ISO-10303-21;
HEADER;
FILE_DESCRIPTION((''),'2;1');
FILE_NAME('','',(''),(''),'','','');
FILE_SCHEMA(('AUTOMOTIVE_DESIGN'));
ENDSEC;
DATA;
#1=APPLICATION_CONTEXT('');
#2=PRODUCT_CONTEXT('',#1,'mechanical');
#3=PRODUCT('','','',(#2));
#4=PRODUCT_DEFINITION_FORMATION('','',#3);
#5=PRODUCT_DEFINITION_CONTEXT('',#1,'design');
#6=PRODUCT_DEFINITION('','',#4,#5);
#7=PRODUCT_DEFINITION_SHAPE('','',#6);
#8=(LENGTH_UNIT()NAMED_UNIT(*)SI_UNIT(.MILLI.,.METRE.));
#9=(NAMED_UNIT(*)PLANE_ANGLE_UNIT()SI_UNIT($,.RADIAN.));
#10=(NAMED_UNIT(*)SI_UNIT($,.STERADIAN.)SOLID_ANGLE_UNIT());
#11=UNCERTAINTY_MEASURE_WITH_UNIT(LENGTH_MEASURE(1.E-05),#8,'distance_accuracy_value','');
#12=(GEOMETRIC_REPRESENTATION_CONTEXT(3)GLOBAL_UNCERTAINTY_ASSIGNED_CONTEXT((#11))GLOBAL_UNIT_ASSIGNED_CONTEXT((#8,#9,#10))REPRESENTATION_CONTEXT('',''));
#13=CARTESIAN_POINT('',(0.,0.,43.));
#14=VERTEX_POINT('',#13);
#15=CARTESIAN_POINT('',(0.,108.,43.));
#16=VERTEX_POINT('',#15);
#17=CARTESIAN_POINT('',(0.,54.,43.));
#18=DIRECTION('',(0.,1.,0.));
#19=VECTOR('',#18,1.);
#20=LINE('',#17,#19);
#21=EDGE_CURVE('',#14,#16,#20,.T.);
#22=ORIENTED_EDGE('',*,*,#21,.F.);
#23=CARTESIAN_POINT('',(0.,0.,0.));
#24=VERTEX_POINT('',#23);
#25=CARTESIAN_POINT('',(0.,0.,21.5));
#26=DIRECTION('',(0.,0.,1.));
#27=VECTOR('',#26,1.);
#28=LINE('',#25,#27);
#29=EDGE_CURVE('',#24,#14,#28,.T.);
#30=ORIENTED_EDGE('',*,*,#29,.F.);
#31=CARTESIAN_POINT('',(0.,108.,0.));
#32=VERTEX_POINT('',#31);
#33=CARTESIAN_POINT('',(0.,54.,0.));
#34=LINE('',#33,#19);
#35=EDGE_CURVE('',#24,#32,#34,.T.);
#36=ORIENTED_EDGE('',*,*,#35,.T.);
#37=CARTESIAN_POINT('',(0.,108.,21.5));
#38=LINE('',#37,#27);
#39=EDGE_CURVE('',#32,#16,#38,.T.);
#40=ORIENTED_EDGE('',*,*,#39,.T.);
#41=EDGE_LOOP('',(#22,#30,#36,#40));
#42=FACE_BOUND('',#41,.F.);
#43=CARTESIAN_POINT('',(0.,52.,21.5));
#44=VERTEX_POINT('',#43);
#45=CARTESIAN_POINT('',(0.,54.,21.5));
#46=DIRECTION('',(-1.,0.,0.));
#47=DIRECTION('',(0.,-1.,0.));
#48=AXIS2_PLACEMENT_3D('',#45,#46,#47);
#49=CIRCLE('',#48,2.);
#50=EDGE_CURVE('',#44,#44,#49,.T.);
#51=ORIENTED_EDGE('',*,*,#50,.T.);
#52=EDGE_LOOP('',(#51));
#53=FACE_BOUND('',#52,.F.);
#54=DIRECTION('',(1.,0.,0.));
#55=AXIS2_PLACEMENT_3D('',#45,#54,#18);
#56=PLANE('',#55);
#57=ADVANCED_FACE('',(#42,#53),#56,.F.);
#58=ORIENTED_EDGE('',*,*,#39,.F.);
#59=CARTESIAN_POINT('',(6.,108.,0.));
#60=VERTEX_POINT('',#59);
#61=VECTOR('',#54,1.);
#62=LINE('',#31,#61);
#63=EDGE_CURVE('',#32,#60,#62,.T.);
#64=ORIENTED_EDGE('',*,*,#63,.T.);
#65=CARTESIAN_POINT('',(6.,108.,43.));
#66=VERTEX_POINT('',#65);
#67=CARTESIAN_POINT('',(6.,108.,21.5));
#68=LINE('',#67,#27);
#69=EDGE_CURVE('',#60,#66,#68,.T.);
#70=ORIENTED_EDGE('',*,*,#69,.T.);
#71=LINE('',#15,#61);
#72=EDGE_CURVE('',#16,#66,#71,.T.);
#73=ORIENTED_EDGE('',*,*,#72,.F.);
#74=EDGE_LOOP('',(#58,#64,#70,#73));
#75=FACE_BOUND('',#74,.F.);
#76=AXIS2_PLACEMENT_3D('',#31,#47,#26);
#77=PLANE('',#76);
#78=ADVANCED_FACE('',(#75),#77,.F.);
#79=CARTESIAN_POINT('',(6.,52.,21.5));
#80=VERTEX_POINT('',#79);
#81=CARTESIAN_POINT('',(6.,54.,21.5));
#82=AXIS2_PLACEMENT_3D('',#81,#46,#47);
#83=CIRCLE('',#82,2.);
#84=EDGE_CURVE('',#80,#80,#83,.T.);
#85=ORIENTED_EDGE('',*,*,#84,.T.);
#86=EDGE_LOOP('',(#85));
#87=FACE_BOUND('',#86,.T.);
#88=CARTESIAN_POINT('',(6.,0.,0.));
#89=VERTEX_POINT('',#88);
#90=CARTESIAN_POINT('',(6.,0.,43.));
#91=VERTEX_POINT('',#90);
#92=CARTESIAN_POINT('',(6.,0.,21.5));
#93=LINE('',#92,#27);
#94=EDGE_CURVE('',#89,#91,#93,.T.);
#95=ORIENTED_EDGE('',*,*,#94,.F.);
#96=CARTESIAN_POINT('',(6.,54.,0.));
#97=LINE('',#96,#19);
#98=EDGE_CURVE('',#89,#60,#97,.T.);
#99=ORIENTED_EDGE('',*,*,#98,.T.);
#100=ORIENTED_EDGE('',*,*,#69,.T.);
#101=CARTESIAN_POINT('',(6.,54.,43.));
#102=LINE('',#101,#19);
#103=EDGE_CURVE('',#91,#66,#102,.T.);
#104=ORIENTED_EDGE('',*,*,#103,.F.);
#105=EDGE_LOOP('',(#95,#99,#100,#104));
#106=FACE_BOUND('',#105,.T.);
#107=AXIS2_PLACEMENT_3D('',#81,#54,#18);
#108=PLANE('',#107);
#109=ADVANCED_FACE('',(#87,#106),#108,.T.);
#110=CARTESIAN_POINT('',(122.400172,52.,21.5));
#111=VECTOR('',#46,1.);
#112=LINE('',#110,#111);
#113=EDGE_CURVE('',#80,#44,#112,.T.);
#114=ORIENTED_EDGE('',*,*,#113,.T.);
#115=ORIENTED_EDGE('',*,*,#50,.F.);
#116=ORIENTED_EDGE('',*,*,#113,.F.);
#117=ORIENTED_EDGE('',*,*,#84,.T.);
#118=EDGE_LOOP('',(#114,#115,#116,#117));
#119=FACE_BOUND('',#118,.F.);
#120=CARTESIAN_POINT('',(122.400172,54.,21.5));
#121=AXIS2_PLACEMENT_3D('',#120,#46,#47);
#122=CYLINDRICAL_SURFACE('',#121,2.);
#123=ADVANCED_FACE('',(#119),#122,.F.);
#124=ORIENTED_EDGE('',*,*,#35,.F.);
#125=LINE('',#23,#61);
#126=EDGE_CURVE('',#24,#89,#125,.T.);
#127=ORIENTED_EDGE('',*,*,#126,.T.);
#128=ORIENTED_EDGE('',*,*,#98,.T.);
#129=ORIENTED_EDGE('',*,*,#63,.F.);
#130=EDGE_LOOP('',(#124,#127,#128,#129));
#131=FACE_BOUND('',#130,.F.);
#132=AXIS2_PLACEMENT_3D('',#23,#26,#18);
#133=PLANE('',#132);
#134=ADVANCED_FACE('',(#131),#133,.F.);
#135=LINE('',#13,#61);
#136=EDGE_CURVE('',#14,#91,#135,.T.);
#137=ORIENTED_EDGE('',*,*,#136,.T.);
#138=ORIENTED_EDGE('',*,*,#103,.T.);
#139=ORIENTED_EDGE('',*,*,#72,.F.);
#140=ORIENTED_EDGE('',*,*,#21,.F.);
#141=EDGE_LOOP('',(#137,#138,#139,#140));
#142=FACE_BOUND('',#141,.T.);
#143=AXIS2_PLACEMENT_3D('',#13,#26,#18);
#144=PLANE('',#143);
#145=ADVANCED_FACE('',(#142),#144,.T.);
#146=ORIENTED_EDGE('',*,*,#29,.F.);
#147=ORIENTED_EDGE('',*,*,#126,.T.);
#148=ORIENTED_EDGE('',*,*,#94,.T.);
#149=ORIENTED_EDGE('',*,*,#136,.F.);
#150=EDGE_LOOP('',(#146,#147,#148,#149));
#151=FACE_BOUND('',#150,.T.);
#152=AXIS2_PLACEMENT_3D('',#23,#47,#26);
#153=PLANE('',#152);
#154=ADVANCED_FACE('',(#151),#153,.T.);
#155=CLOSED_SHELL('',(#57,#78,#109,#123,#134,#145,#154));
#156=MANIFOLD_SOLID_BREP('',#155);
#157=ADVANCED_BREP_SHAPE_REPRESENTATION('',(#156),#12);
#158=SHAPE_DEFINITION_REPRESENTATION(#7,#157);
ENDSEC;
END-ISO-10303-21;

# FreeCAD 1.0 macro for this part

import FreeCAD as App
import Part
import Sketcher
Q = App.Units.Quantity

doc = App.newDocument("Part")
body = doc.addObject("PartDesign::Body", "Body")

# Sketch on YZ plane
sketch1 = body.newObject("Sketcher::SketchObject", "Sketch")
sketch1.AttachmentSupport = (doc.getObject("YZ_Plane"), [""])
sketch1.MapMode = "FlatFace"
sketch1.addGeometry(Part.LineSegment(App.Vector(0, 43, 0), App.Vector(0, 0, 0)), False)
sketch1.addGeometry(Part.LineSegment(App.Vector(0, 0, 0), App.Vector(108, 0, 0)), False)
sketch1.addGeometry(Part.LineSegment(App.Vector(108, 0, 0), App.Vector(108, 43, 0)), False)
sketch1.addGeometry(Part.LineSegment(App.Vector(108, 43, 0), App.Vector(0, 43, 0)), False)
sketch1.addConstraint(Sketcher.Constraint("Coincident", 0, 2, 1, 1))
sketch1.addConstraint(Sketcher.Constraint("Coincident", 1, 2, 2, 1))
sketch1.addConstraint(Sketcher.Constraint("Coincident", 2, 2, 3, 1))
sketch1.addConstraint(Sketcher.Constraint("Coincident", 3, 2, 0, 1))
sketch1.addConstraint(Sketcher.Constraint("Vertical", 0))
sketch1.addConstraint(Sketcher.Constraint("Horizontal", 1))
sketch1.addConstraint(Sketcher.Constraint("Vertical", 2))
sketch1.addConstraint(Sketcher.Constraint("Horizontal", 3))
sketch1.addConstraint(Sketcher.Constraint("Coincident", 0, 2, -1, 1))
sketch1.addConstraint(Sketcher.Constraint("DistanceX", 1, 1, 1, 2, Q("108 mm")))
sketch1.addConstraint(Sketcher.Constraint("DistanceY", 0, 2, 0, 1, Q("43 mm")))
pad1 = body.newObject("PartDesign::Pad", "Pad")
pad1.Profile = sketch1
pad1.Length = 6

# Sketch on YZ plane
sketch2 = body.newObject("Sketcher::SketchObject", "Sketch001")
sketch2.AttachmentSupport = (doc.getObject("YZ_Plane"), [""])
sketch2.MapMode = "FlatFace"
sketch2.AttachmentOffset = App.Placement(App.Vector(0, 0, 6), App.Rotation())
sketch2.addGeometry(Part.Circle(App.Vector(54, 21.5, 0), App.Vector(0, 0, 1), 2), False)
sketch2.addConstraint(Sketcher.Constraint("Diameter", 0, Q("4 mm")))
sketch2.addConstraint(Sketcher.Constraint("DistanceX", -1, 1, 0, 3, Q("54 mm")))
sketch2.addConstraint(Sketcher.Constraint("DistanceY", -1, 1, 0, 3, Q("21.5 mm")))
doc.recompute()
hole = body.newObject("PartDesign::Hole", "Hole")
hole.Profile = sketch2
hole.ThreadType = "None"
hole.Diameter = 4
hole.DepthType = "ThroughAll"

doc.recompute()
